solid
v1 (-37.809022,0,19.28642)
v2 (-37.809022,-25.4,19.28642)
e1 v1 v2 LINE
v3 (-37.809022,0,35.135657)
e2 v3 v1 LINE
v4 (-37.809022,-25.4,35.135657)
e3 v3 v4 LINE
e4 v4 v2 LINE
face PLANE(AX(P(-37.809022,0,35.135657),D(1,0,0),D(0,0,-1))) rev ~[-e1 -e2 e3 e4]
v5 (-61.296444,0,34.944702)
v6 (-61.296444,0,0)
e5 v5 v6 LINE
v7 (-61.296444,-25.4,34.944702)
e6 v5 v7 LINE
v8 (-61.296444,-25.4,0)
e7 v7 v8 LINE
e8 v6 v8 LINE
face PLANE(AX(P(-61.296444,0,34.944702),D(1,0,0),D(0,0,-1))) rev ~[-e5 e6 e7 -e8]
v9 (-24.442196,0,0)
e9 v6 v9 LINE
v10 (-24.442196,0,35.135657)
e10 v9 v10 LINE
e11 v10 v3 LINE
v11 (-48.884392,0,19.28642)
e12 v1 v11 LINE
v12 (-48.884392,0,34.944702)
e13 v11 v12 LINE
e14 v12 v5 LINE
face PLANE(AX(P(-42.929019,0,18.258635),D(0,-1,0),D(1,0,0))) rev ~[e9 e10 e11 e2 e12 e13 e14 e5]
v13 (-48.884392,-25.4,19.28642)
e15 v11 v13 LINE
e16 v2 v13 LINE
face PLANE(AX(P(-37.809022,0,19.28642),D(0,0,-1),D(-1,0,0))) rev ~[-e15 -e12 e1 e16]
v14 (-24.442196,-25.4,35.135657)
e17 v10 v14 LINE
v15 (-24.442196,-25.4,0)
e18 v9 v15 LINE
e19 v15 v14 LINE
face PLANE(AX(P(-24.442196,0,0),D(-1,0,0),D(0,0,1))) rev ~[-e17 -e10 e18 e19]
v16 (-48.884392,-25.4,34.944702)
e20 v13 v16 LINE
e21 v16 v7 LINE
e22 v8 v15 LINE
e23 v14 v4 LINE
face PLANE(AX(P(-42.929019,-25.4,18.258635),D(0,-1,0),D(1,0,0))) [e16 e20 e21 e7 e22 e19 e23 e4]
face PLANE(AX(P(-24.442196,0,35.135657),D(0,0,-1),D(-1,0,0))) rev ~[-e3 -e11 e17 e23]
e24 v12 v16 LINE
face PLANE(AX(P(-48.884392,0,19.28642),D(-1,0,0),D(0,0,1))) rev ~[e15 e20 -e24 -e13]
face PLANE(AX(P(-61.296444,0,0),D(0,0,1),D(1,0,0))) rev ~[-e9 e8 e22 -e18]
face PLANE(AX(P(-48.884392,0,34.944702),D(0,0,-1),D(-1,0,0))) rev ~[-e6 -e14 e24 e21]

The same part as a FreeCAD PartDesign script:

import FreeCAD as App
import Part
import Sketcher
Q = App.Units.Quantity


def add_polygon(sketch, points):
    """Adds a closed chain of lines whose ends are joined by coincident constraints."""
    first, n = sketch.GeometryCount, len(points)
    for a, b in zip(points, points[1:] + points[:1]):
        sketch.addGeometry(Part.LineSegment(App.Vector(*a, 0), App.Vector(*b, 0)), False)
    for i in range(n):
        sketch.addConstraint(Sketcher.Constraint("Coincident", first + i, 2, first + (i + 1) % n, 1))

doc = App.newDocument("Part")
body = doc.addObject("PartDesign::Body", "Body")

# Sketch on XZ plane
sketch1 = body.newObject("Sketcher::SketchObject", "Sketch")
sketch1.AttachmentSupport = (doc.getObject("XZ_Plane"), [""])
sketch1.MapMode = "FlatFace"
add_polygon(sketch1, [(-51, 57), (-64, 57), (-64, 0), (-8, 0), (-8, 57), (-22, 57), (-22, 12), (-51, 12)])  # lines 0-7
sketch1.addConstraint([
    Sketcher.Constraint("Vertical", 1),
    Sketcher.Constraint("Horizontal", 2),
    Sketcher.Constraint("Vertical", 3),
    Sketcher.Constraint("Horizontal", 4),
    Sketcher.Constraint("Vertical", 5),
    Sketcher.Constraint("Horizontal", 6),
    Sketcher.Constraint("Vertical", 7),
    Sketcher.Constraint("PointOnObject", 1, 2, -1),
    Sketcher.Constraint("Horizontal", 0, 2, 3, 2),
    Sketcher.Constraint("DistanceX", 4, 2, 4, 1, 13.557781),
    Sketcher.Constraint("DistanceY", 1, 2, 1, 1, 56.522578),
    Sketcher.Constraint("DistanceX", 2, 1, 2, 2, 55.185893),
    Sketcher.Constraint("DistanceX", 6, 2, 6, 1, 29.216062),
    Sketcher.Constraint("DistanceY", 5, 2, 5, 1, 44.874343),
    Sketcher.Constraint("DistanceY", 7, 1, 7, 2, 45.065298),
    Sketcher.Constraint("DistanceX", 0, 2, -1, 1, 63.587897),
])
pad1 = body.newObject("PartDesign::Pad", "Pad")
pad1.Profile = sketch1
pad1.Length = Q("1 in")
body2 = doc.addObject("PartDesign::Body", "Body001")

# Sketch on XZ plane
sketch2 = body2.newObject("Sketcher::SketchObject", "Sketch001")
sketch2.AttachmentSupport = (doc.getObject("XZ_Plane001"), [""])
sketch2.MapMode = "FlatFace"
add_polygon(sketch2, [(-61, 35), (-61, 0), (-24, 0), (-24, 35), (-38, 35), (-38, 19), (-49, 19), (-49, 35)])  # lines 0-7
sketch2.addConstraint([
    Sketcher.Constraint("Vertical", 0),
    Sketcher.Constraint("Horizontal", 1),
    Sketcher.Constraint("Vertical", 2),
    Sketcher.Constraint("Horizontal", 3),
    Sketcher.Constraint("Vertical", 4),
    Sketcher.Constraint("Horizontal", 5),
    Sketcher.Constraint("Vertical", 6),
    Sketcher.Constraint("Horizontal", 7),
    Sketcher.Constraint("PointOnObject", 0, 2, -1),
    Sketcher.Constraint("DistanceY", 0, 2, 0, 1, 34.944702),
    Sketcher.Constraint("DistanceX", 1, 1, 1, 2, 36.854248),
    Sketcher.Constraint("DistanceX", 5, 2, 5, 1, 11.07537),
    Sketcher.Constraint("DistanceY", 6, 1, 6, 2, 15.658282),
    Sketcher.Constraint("DistanceX", 3, 2, 3, 1, 13.366826),
    Sketcher.Constraint("DistanceY", 2, 1, 2, 2, 35.135657),
    Sketcher.Constraint("DistanceX", 3, 2, -1, 1, 37.809022),
])
pad2 = body2.newObject("PartDesign::Pad", "Pad001")
pad2.Profile = sketch2
pad2.Length = Q("1 in")
body.Visibility = False

doc.recompute()
